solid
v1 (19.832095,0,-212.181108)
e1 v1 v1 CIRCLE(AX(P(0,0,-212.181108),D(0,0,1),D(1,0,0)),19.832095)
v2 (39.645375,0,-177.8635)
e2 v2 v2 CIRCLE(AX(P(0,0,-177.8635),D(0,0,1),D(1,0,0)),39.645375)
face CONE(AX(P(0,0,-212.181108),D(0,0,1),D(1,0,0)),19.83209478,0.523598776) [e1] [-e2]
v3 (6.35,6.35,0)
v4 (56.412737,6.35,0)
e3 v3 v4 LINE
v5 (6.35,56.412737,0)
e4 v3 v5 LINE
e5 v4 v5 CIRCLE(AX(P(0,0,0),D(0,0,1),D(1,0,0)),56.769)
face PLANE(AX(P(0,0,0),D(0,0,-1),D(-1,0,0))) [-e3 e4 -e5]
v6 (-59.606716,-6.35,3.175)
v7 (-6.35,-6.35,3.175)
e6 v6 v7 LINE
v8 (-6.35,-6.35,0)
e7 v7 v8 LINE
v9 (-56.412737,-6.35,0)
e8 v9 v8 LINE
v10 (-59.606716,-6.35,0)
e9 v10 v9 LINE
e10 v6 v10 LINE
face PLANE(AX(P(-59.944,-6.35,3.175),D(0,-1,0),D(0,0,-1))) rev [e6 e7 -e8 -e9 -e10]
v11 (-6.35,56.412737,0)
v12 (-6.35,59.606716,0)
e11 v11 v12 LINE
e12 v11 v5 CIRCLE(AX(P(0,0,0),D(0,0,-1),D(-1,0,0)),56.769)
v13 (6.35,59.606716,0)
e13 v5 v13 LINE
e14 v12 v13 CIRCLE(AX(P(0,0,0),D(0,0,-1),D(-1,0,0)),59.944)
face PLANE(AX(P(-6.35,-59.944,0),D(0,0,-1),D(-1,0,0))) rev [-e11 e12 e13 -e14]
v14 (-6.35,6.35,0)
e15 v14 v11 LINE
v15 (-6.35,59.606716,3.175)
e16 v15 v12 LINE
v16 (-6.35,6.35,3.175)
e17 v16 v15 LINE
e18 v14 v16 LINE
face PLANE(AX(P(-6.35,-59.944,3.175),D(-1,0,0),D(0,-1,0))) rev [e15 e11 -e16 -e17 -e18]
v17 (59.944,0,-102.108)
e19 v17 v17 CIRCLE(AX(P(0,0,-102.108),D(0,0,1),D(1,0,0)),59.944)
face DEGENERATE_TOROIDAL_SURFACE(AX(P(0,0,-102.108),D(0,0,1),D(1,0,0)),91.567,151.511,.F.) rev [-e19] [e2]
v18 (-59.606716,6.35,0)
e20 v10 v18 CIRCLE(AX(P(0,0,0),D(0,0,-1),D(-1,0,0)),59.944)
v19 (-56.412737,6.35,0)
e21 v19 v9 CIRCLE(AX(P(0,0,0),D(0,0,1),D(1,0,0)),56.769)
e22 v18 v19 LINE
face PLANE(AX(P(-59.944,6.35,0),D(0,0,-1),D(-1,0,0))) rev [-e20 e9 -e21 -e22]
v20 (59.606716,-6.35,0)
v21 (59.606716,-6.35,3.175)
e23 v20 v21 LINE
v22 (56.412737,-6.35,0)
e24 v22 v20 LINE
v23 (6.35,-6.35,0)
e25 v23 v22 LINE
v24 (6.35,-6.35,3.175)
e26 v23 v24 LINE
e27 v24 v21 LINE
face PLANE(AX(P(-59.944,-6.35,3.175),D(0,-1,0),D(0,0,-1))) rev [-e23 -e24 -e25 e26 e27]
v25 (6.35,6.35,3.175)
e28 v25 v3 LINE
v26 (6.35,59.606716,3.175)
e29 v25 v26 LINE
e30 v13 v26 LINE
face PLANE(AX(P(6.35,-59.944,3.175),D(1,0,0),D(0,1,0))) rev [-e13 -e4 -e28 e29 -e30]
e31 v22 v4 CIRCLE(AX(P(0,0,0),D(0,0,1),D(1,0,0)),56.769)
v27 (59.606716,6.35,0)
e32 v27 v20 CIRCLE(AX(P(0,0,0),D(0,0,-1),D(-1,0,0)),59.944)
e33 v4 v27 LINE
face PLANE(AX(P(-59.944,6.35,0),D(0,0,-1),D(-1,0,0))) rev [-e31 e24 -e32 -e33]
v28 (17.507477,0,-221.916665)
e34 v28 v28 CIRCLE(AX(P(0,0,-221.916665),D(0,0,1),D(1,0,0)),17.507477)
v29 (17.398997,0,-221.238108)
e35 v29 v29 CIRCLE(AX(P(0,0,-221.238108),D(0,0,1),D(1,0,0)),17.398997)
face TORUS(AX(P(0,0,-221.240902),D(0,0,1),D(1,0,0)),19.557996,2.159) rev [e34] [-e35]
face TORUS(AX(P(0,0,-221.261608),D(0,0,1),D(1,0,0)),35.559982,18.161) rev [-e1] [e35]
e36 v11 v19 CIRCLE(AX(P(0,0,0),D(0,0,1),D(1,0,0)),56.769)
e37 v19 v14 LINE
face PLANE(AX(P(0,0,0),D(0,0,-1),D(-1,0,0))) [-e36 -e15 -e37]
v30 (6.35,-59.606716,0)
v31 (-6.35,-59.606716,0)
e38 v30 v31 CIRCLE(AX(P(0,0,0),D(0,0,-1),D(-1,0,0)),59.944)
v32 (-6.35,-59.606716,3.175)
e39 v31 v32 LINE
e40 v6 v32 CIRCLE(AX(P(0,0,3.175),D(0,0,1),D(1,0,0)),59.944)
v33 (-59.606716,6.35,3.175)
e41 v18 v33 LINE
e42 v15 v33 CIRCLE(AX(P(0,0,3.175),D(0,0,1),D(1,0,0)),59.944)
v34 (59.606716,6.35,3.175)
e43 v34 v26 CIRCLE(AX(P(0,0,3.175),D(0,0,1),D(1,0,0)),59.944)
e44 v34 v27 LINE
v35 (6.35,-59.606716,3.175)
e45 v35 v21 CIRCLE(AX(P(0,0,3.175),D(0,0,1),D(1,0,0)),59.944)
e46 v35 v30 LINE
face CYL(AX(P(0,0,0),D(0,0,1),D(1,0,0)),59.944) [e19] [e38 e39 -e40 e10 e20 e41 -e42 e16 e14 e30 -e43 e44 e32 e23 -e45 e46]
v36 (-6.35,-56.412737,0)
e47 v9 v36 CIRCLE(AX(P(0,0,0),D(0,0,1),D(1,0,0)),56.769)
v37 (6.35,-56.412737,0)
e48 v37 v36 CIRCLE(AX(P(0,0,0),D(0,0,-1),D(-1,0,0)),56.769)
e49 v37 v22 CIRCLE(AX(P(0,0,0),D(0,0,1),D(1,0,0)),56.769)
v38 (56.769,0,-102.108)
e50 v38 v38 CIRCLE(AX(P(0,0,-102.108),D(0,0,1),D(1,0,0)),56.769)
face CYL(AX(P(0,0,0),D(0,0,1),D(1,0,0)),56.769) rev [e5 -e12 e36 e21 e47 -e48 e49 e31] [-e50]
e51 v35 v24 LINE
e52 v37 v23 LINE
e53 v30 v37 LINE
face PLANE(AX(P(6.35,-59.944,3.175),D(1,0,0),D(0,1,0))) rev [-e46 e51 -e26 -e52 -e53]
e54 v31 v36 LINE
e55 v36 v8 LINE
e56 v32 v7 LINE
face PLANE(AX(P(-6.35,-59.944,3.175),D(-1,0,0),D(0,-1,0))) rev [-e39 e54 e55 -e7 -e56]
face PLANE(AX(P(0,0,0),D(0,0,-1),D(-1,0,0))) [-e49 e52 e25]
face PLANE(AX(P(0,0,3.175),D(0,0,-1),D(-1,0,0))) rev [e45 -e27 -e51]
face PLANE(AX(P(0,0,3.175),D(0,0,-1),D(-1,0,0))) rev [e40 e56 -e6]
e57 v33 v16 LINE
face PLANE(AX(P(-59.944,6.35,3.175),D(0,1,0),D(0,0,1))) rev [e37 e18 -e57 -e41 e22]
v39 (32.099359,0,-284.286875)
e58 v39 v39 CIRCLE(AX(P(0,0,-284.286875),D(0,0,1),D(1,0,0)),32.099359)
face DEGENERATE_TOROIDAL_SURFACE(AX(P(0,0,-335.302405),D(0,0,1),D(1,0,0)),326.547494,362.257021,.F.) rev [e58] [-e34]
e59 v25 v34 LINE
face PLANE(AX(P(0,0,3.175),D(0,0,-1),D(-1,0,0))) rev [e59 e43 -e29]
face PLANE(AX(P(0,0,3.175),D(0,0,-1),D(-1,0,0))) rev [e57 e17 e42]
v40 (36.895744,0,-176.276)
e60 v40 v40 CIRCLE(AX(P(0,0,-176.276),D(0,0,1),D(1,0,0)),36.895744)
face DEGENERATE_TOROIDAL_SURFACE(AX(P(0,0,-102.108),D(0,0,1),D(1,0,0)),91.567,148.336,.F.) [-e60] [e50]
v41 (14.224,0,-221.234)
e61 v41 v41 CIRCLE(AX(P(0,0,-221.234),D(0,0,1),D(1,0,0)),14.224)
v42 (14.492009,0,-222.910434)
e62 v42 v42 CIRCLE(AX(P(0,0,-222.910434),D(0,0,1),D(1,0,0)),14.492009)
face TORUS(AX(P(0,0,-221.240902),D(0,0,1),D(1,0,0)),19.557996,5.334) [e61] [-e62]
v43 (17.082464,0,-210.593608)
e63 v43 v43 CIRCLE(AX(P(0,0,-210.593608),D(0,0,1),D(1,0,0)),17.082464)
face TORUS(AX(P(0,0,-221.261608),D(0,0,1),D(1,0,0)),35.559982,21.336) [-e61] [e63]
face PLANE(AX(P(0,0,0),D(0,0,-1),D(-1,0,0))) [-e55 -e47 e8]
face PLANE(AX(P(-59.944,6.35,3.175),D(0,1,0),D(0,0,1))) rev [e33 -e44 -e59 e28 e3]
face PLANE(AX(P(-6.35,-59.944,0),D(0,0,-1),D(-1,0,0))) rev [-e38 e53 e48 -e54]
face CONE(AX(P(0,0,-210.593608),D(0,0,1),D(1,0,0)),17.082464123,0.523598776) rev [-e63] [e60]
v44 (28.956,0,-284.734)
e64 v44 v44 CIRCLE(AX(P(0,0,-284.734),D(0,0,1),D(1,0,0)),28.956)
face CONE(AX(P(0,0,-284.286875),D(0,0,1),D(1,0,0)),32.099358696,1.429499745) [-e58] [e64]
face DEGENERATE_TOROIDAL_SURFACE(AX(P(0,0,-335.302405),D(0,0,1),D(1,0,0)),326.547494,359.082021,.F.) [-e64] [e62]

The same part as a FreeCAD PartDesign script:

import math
import FreeCAD as App
import Part
import Sketcher
Q = App.Units.Quantity

doc = App.newDocument("Part")
body = doc.addObject("PartDesign::Body", "Body")

sketch1 = doc.addObject("Sketcher::SketchObject", "Sketch")
body.addObject(sketch1)
sketch1.AttachmentSupport = (doc.YZ_Plane, [""])
sketch1.MapMode = "FlatFace"
sketch1.addGeometry([
    Part.LineSegment(App.Vector(0, 0, 0), App.Vector(56.8, 0, 0)),
    Part.LineSegment(App.Vector(56.8, 0, 0), App.Vector(56.8, -102.1, 0)),
    Part.ArcOfCircle(Part.Circle(App.Vector(-91.6, -102.1, 0), App.Vector(0, 0, 1), 148.3), math.radians(-30), math.radians(0)),
    Part.LineSegment(App.Vector(36.9, -176.3, 0), App.Vector(17.1, -210.6, 0)),
    Part.ArcOfCircle(Part.Circle(App.Vector(35.6, -221.3, 0), App.Vector(0, 0, 1), 21.3), math.radians(150), math.radians(180)),
    Part.ArcOfCircle(Part.Circle(App.Vector(19.6, -221.2, 0), App.Vector(0, 0, 1), 5.3), math.radians(179.93), math.radians(198.24)),
    Part.ArcOfCircle(Part.Circle(App.Vector(-326.5, -335.3, 0), App.Vector(0, 0, 1), 359.1), math.radians(8.1), math.radians(18.24)),
    Part.LineSegment(App.Vector(29, -284.7, 0), App.Vector(32.1, -284.3, 0)),
    Part.ArcOfCircle(Part.Circle(App.Vector(-326.5, -335.3, 0), App.Vector(0, 0, 1), 362.3), math.radians(8.1), math.radians(18.24)),
    Part.ArcOfCircle(Part.Circle(App.Vector(19.6, -221.2, 0), App.Vector(0, 0, 1), 2.2), math.radians(179.93), math.radians(198.24)),
    Part.ArcOfCircle(Part.Circle(App.Vector(35.6, -221.3, 0), App.Vector(0, 0, 1), 18.2), math.radians(150), math.radians(180)),
    Part.LineSegment(App.Vector(19.8, -212.2, 0), App.Vector(39.6, -177.9, 0)),
    Part.ArcOfCircle(Part.Circle(App.Vector(-91.6, -102.1, 0), App.Vector(0, 0, 1), 151.5), math.radians(-30), math.radians(0)),
    Part.LineSegment(App.Vector(59.9, -102.1, 0), App.Vector(59.9, 3.2, 0)),
    Part.LineSegment(App.Vector(59.9, 3.2, 0), App.Vector(0, 3.2, 0)),
    Part.LineSegment(App.Vector(0, 3.2, 0), App.Vector(0, 0, 0)),
], False)
sketch1.addConstraint([
    Sketcher.Constraint("Coincident", 0, 2, 1, 1),
    Sketcher.Constraint("Tangent", 1, 2, 2, 2),
    Sketcher.Constraint("Tangent", 2, 1, 3, 1),
    Sketcher.Constraint("Tangent", 3, 2, 4, 1),
    Sketcher.Constraint("Tangent", 4, 2, 5, 1),
    Sketcher.Constraint("Tangent", 5, 2, 6, 2),
    Sketcher.Constraint("Coincident", 6, 1, 7, 1),
    Sketcher.Constraint("Coincident", 7, 2, 8, 1),
    Sketcher.Constraint("Tangent", 8, 2, 9, 2),
    Sketcher.Constraint("Tangent", 9, 1, 10, 2),
    Sketcher.Constraint("Tangent", 10, 1, 11, 1),
    Sketcher.Constraint("Tangent", 11, 2, 12, 1),
    Sketcher.Constraint("Tangent", 12, 2, 13, 1),
    Sketcher.Constraint("Coincident", 13, 2, 14, 1),
    Sketcher.Constraint("Coincident", 14, 2, 15, 1),
    Sketcher.Constraint("Coincident", 15, 2, 0, 1),
    Sketcher.Constraint("Horizontal", 0),
    Sketcher.Constraint("Vertical", 1),
    Sketcher.Constraint("Vertical", 13),
    Sketcher.Constraint("Horizontal", 14),
    Sketcher.Constraint("Vertical", 15),
    Sketcher.Constraint("Coincident", 15, 2, -1, 1),
    Sketcher.Constraint("Coincident", 8, 3, 6, 3),
    Sketcher.Constraint("Coincident", 9, 3, 5, 3),
    Sketcher.Constraint("Coincident", 10, 3, 4, 3),
    Sketcher.Constraint("Coincident", 12, 3, 2, 3),
    Sketcher.Constraint("Parallel", 3, 11),
    Sketcher.Constraint("Radius", 2, Q("5.84 in")),
    Sketcher.Constraint("Radius", 4, Q("0.84 in")),
    Sketcher.Constraint("Radius", 5, Q("0.21 in")),
    Sketcher.Constraint("Angle", 3, Q("-120 deg")),
    Sketcher.Constraint("Radius", 9, Q("0.085 in")),
    Sketcher.Constraint("DistanceX", 14, 2, 14, 1, Q("2.36 in")),
    Sketcher.Constraint("DistanceY", 1, 2, 1, 1, Q("4.02 in")),
    Sketcher.Constraint("DistanceY", 13, 1, 13, 2, Q("4.145 in")),
    Sketcher.Constraint("DistanceX", -1, 1, 5, 3, Q("0.7699998 in")),
    Sketcher.Constraint("DistanceY", 4, 2, -1, 1, Q("8.71 in")),
    Sketcher.Constraint("DistanceX", -1, 1, 6, 1, Q("1.14 in")),
    Sketcher.Constraint("Radius", 6, Q("359.082021 mm")),
    Sketcher.Constraint("DistanceX", 6, 3, 4, 3, Q("14.2561999 in")),
    Sketcher.Constraint("DistanceX", -1, 1, 7, 2, Q("32.099359 mm")),
])
revolution = doc.addObject("PartDesign::Revolution", "Revolution")
body.addObject(revolution)
revolution.Profile = sketch1
revolution.ReferenceAxis = (sketch1, ["V_Axis"])
revolution.Angle = 360

sketch2 = doc.addObject("Sketcher::SketchObject", "Sketch001")
body.addObject(sketch2)
sketch2.AttachmentSupport = (doc.YZ_Plane, [""])
sketch2.MapMode = "FlatFace"
sketch2.addGeometry([
    Part.LineSegment(App.Vector(6.3, 3.2, 0), App.Vector(-6.3, 3.2, 0)),
    Part.LineSegment(App.Vector(-6.3, 3.2, 0), App.Vector(-6.3, 0, 0)),
    Part.LineSegment(App.Vector(-6.3, 0, 0), App.Vector(6.3, 0, 0)),
    Part.LineSegment(App.Vector(6.3, 0, 0), App.Vector(6.3, 3.2, 0)),
], False)
sketch2.addConstraint([
    Sketcher.Constraint("Coincident", 0, 2, 1, 1),
    Sketcher.Constraint("Coincident", 1, 2, 2, 1),
    Sketcher.Constraint("Coincident", 2, 2, 3, 1),
    Sketcher.Constraint("Coincident", 3, 2, 0, 1),
    Sketcher.Constraint("Horizontal", 0),
    Sketcher.Constraint("Vertical", 1),
    Sketcher.Constraint("Horizontal", 2),
    Sketcher.Constraint("Vertical", 3),
    Sketcher.Constraint("Symmetric", 1, 2, 2, 2, -1, 1),
    Sketcher.Constraint("DistanceX", 0, 2, 0, 1, Q("0.5 in")),
    Sketcher.Constraint("DistanceY", 1, 2, 1, 1, Q("0.125 in")),
])
pocket1 = doc.addObject("PartDesign::Pocket", "Pocket")
body.addObject(pocket1)
pocket1.Profile = sketch2
pocket1.Length = 596.17175
pocket1.Midplane = True
doc.recompute()

polarpattern = doc.addObject("PartDesign::PolarPattern", "PolarPattern")
body.addObject(polarpattern)
polarpattern.Originals = [pocket1]
polarpattern.Axis = (doc.Z_Axis, [""])
polarpattern.Angle = 90
polarpattern.Occurrences = 2
body.Tip = polarpattern

doc.recompute()
